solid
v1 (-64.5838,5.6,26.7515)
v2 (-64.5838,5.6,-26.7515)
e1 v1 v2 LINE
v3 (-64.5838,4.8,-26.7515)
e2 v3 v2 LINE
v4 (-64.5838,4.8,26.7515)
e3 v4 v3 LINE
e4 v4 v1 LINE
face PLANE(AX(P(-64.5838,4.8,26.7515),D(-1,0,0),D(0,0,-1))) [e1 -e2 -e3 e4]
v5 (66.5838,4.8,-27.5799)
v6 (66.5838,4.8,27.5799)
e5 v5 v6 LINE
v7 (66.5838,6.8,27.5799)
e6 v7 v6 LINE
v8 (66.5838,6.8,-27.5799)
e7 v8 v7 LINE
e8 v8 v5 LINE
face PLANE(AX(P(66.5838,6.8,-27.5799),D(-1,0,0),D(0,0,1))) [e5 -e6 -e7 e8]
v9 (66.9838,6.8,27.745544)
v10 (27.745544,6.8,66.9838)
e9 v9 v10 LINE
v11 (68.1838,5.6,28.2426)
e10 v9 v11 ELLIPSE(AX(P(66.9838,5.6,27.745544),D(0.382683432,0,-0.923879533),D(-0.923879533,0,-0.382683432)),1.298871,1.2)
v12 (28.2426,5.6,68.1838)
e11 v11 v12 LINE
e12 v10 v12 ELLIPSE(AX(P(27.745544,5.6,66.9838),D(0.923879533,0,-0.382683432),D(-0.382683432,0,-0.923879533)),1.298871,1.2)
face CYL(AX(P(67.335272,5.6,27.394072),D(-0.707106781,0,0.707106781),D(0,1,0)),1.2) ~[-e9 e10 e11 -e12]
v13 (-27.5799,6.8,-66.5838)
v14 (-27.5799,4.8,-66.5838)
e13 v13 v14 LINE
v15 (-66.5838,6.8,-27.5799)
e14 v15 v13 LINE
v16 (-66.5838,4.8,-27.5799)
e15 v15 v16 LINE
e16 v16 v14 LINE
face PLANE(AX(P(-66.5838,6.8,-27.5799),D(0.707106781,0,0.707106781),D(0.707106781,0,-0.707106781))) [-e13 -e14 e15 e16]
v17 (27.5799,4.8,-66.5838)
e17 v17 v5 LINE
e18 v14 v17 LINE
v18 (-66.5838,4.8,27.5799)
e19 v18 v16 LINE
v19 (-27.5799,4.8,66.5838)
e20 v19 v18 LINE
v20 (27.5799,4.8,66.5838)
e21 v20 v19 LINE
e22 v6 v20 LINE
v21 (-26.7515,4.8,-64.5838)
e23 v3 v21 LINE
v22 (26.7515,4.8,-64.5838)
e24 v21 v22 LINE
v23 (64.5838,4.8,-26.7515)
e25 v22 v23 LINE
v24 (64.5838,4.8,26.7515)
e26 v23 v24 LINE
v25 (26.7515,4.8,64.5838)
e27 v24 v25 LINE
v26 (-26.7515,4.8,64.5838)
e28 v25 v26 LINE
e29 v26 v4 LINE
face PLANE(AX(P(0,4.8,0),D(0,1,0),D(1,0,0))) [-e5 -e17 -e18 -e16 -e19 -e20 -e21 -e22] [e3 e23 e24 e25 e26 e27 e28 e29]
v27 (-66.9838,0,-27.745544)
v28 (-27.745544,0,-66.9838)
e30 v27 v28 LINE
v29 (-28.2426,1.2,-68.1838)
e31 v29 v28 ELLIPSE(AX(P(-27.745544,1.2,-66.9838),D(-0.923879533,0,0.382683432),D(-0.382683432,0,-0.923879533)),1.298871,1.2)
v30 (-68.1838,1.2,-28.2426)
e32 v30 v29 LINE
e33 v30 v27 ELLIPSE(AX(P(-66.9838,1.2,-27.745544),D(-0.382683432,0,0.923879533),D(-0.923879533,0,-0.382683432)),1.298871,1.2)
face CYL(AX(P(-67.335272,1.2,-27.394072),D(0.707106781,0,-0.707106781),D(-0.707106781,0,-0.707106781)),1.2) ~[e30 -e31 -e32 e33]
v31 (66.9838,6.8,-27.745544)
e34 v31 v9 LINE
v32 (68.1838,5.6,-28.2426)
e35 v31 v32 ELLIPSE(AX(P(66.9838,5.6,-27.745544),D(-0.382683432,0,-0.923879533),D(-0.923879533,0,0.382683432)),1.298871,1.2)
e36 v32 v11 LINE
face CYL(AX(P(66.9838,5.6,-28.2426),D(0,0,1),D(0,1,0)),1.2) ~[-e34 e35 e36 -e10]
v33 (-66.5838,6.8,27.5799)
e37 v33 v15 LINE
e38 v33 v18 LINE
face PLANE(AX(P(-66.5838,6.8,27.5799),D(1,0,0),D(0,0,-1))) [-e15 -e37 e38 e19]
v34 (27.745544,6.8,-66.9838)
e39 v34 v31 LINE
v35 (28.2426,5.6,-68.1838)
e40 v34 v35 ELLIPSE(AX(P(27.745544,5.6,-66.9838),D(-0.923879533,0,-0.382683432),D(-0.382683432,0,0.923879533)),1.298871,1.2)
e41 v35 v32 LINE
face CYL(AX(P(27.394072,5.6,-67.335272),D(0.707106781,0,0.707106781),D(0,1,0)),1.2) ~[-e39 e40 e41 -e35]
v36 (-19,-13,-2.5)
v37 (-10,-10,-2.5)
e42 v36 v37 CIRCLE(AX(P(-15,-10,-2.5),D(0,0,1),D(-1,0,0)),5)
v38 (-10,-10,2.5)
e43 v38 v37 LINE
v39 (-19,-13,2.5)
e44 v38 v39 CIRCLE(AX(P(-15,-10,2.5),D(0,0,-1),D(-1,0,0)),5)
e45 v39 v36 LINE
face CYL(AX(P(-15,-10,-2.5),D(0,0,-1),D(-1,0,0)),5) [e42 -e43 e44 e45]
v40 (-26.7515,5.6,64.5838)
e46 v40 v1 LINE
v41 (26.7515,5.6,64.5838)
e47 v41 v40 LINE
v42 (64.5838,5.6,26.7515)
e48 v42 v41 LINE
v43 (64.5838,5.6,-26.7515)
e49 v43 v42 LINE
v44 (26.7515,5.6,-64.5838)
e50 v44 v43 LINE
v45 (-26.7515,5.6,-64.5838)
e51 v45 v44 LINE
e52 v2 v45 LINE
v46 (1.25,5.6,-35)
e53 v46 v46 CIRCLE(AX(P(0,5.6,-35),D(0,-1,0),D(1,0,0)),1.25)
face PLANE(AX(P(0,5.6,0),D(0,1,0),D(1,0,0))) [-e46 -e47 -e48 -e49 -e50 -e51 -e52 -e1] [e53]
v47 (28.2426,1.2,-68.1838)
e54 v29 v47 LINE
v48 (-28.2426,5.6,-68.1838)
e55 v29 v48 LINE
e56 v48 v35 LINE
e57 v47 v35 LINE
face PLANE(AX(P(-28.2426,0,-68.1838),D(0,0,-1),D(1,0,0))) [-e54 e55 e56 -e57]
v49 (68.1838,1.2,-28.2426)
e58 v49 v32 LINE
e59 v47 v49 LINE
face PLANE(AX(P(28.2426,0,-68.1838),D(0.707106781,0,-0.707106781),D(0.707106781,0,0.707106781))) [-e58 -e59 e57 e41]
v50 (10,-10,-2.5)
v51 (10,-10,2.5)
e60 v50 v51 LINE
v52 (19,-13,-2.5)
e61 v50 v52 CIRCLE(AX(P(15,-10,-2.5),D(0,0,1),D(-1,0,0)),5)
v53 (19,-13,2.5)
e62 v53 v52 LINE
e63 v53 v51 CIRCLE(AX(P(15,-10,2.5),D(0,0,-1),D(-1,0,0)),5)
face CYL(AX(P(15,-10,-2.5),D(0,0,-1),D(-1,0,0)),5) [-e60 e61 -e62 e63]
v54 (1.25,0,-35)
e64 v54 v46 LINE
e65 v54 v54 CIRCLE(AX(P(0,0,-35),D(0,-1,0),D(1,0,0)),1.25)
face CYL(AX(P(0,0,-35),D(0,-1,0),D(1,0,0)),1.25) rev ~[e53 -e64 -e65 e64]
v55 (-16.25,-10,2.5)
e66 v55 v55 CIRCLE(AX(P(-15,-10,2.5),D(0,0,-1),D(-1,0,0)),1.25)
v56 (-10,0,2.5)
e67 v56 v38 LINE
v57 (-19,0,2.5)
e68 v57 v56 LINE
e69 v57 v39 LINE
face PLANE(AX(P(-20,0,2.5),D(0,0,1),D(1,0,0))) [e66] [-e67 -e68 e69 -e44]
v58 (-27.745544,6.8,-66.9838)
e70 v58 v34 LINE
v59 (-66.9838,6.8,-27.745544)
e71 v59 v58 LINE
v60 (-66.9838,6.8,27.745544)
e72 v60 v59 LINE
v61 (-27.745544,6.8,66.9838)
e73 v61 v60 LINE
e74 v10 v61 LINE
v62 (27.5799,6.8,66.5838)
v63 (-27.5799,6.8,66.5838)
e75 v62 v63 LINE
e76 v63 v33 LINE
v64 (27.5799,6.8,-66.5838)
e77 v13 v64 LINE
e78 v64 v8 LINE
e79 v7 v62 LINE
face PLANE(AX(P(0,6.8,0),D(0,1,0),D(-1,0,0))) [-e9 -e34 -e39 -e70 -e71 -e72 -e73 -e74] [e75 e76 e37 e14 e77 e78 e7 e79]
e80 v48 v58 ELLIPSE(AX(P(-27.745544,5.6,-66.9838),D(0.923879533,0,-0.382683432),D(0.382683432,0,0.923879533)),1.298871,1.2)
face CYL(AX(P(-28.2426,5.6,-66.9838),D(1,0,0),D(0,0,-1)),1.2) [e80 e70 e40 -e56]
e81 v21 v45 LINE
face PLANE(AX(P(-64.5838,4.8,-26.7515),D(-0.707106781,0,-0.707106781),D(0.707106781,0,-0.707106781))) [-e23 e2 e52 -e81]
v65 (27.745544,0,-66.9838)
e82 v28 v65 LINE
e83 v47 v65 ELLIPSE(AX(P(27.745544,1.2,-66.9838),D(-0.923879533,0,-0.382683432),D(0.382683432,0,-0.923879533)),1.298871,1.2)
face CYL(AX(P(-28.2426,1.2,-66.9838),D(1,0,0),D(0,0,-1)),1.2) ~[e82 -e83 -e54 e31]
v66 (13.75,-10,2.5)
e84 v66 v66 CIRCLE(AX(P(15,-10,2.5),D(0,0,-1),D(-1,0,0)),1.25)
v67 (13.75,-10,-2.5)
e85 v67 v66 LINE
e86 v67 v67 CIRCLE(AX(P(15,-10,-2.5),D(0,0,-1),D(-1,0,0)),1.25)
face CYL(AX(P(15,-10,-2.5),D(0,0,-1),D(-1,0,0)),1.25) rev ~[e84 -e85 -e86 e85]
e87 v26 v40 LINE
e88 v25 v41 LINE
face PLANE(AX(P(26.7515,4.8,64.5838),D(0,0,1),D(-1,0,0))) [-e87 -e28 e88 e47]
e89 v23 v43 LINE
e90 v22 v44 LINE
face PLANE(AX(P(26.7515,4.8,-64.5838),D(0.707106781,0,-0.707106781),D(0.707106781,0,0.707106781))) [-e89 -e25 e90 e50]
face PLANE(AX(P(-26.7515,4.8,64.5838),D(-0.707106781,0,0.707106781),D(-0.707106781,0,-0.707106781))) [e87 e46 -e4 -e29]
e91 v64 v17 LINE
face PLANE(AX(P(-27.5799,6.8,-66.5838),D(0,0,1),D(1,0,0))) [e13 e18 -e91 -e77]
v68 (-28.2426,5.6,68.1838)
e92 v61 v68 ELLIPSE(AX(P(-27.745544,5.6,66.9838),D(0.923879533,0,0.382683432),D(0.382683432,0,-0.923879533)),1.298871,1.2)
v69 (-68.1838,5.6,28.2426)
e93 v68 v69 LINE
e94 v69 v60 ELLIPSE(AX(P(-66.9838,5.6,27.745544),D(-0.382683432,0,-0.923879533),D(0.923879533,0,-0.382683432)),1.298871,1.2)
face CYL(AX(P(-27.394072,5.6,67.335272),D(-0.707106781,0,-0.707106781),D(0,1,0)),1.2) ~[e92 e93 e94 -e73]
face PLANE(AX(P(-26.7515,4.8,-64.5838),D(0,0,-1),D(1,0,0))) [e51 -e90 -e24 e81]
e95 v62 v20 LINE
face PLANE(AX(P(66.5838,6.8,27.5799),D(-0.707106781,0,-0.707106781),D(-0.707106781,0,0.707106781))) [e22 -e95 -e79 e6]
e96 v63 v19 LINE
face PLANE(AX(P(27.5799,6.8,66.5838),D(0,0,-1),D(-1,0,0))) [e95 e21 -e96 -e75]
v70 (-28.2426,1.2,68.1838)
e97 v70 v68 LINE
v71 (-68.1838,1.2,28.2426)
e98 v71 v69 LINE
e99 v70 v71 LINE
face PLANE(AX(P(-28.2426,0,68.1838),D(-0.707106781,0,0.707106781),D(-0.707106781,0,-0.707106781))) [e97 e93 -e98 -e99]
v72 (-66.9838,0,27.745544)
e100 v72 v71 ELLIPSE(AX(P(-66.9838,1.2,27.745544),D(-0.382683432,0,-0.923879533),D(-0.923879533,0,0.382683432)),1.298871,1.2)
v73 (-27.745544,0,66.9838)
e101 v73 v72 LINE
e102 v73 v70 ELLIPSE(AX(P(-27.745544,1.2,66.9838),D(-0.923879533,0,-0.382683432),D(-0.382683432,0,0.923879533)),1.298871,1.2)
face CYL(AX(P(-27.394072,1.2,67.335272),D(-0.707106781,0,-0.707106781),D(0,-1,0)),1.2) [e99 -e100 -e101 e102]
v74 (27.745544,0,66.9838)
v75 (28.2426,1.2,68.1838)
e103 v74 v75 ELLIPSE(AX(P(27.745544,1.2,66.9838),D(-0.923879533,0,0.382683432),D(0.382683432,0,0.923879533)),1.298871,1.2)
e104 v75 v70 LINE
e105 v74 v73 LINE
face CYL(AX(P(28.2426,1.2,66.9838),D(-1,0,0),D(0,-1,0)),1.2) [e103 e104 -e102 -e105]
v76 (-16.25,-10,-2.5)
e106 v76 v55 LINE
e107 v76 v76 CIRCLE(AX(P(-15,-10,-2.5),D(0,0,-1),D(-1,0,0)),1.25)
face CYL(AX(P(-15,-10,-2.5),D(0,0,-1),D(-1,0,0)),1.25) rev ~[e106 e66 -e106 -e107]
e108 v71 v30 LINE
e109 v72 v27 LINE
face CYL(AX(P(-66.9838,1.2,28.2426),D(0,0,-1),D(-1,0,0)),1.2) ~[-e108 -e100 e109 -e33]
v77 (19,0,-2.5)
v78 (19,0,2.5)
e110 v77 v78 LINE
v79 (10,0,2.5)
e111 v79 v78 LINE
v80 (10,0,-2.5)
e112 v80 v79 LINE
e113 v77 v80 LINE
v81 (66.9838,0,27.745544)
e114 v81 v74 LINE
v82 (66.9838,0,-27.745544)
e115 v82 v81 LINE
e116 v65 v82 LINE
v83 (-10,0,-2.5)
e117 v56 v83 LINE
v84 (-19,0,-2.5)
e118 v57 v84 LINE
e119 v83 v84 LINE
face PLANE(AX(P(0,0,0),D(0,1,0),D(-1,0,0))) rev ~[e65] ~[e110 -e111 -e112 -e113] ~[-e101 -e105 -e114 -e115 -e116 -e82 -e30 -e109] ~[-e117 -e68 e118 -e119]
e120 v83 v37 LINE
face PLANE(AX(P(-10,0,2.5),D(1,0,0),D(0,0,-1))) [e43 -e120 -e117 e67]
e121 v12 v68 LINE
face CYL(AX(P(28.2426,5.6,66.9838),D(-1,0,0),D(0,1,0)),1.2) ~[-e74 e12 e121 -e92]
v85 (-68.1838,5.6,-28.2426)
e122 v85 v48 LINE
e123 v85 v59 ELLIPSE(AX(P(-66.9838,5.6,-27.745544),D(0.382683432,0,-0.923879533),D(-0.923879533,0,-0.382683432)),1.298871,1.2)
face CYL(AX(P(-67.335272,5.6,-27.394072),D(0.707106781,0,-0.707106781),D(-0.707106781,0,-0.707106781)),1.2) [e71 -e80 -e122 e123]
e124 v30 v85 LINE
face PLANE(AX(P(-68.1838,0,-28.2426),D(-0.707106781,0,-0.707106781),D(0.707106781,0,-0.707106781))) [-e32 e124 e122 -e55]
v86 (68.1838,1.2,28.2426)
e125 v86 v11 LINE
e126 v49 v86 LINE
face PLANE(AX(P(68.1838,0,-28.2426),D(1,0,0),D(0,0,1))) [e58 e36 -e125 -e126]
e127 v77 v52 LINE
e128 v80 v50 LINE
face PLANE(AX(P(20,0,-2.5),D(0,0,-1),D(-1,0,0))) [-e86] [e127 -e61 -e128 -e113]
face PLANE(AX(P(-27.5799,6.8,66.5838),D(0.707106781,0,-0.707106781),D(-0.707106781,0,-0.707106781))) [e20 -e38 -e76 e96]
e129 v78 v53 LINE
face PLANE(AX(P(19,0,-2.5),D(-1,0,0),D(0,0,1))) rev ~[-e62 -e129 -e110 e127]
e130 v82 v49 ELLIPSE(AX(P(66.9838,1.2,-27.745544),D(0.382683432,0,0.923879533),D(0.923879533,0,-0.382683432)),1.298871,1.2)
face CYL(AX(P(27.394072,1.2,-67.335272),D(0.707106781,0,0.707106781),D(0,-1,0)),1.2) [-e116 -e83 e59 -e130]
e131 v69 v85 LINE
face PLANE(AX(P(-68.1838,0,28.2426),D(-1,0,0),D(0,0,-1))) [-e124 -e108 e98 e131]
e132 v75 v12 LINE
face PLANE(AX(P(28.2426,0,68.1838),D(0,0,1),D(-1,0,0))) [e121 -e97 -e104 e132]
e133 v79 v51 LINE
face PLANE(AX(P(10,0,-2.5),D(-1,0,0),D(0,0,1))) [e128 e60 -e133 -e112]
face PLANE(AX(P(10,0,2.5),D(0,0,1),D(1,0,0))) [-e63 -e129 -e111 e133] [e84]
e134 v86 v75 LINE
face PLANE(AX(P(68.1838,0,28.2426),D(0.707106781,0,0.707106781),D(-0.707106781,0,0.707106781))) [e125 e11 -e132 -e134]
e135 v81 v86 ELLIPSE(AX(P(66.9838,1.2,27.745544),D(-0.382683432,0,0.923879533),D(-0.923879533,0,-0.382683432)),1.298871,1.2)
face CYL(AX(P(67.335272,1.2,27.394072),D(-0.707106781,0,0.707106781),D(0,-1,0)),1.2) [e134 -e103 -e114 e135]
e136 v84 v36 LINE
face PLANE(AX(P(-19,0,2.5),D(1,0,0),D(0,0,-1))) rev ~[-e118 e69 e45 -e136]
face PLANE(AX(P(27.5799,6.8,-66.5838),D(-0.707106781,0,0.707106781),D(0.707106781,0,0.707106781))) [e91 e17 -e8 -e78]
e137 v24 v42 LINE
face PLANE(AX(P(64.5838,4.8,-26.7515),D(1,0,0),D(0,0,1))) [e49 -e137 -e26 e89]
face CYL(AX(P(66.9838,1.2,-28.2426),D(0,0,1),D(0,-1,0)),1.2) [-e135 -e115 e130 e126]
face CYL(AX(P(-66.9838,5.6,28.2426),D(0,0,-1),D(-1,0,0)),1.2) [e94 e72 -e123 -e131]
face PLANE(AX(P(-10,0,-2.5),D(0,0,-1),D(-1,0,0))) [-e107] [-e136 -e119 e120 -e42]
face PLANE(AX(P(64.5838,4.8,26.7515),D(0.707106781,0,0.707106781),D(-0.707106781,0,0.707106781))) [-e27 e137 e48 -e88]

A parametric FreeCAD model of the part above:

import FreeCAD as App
import Part
import Sketcher

V = App.Vector
Q = App.Units.Quantity


def edges_at(feature, points):
    """Names of the edges that pass closest to the given points."""
    edges = feature.Shape.Edges
    near = lambda p: min(range(len(edges)), key=lambda i: edges[i].distToShape(Part.Vertex(*p))[0])
    return sorted({f"Edge{near(p) + 1}" for p in points})


def add_polygon(sketch, points):
    """Adds a closed chain of lines whose ends are joined by coincident constraints."""
    first, n = sketch.GeometryCount, len(points)
    for a, b in zip(points, points[1:] + points[:1]):
        sketch.addGeometry(Part.LineSegment(App.Vector(*a, 0), App.Vector(*b, 0)), False)
    for i in range(n):
        sketch.addConstraint(Sketcher.Constraint("Coincident", first + i, 2, first + (i + 1) % n, 1))

doc = App.newDocument("Part")
body = doc.addObject("PartDesign::Body", "Body")

sketch1 = body.newObject("Sketcher::SketchObject", "Sketch")
sketch1.AttachmentSupport = (doc.getObject("XZ_Plane"), [""])
sketch1.MapMode = "FlatFace"
add_polygon(sketch1, [(-28, -68), (-68, -28), (-68, 28), (-28, 68), (28, 68), (68, 28), (68, -28), (28, -68)])
sketch1.addConstraint([
    Sketcher.Constraint("Vertical", 1),
    Sketcher.Constraint("Horizontal", 3),
    Sketcher.Constraint("Vertical", 5),
    Sketcher.Constraint("Horizontal", 7),
    Sketcher.Constraint("Symmetric", 0, 2, 4, 2, -1, 1),
    Sketcher.Constraint("Symmetric", 2, 2, 6, 2, -1, 1),
    Sketcher.Constraint("Perpendicular", 0, 2),
    Sketcher.Constraint("Perpendicular", 2, 4),
    Sketcher.Constraint("Perpendicular", 4, 6),
    Sketcher.Constraint("Horizontal", 1, 2, 4, 2),
    Sketcher.Constraint("Vertical", 3, 2, 6, 2),
    Sketcher.Constraint("Equal", 7, 1),
    Sketcher.Constraint("DistanceX", 3, 1, 3, 2, Q("56.4852 mm")),
    Sketcher.Constraint("Distance", 0, Q("56.4854 mm")),
])
pad1 = body.newObject("PartDesign::Pad", "Pad")
pad1.Profile = sketch1
pad1.Length = 6.8
pad1.Reversed = True

sketch2 = body.newObject("Sketcher::SketchObject", "Sketch001")
sketch2.AttachmentSupport = (doc.getObject("XZ_Plane"), [""])
sketch2.MapMode = "FlatFace"
sketch2.AttachmentOffset = App.Placement(V(0, 0, -6.8), App.Rotation())
add_polygon(sketch2, [(28, -67), (-28, -67), (-67, -28), (-67, 28), (-28, 67), (28, 67), (67, 28), (67, -28)])
sketch2.addConstraint([
    Sketcher.Constraint("Horizontal", 0),
    Sketcher.Constraint("Vertical", 2),
    Sketcher.Constraint("Horizontal", 4),
    Sketcher.Constraint("Vertical", 6),
    Sketcher.Constraint("Symmetric", 0, 2, 4, 2, -1, 1),
    Sketcher.Constraint("Symmetric", 1, 2, 5, 2, -1, 1),
    Sketcher.Constraint("Perpendicular", 1, 3),
    Sketcher.Constraint("Perpendicular", 5, 7),
    Sketcher.Constraint("Horizontal", 2, 2, 5, 2),
    Sketcher.Constraint("Horizontal", 1, 2, 6, 2),
    Sketcher.Constraint("Vertical", 0, 2, 3, 2),
    Sketcher.Constraint("Equal", 4, 2),
    Sketcher.Constraint("DistanceX", 0, 2, -1, 1, Q("27.58 mm")),
    Sketcher.Constraint("DistanceX", 1, 2, 0, 2, Q("39.004 mm")),
])
pocket1 = body.newObject("PartDesign::Pocket", "Pocket")
pocket1.Profile = sketch2
pocket1.Length = 2
pocket1.Reversed = True

sketch3 = body.newObject("Sketcher::SketchObject", "Sketch002")
sketch3.AttachmentSupport = (doc.getObject("XZ_Plane"), [""])
sketch3.MapMode = "FlatFace"
add_polygon(sketch3, [(20, 2), (10, 2), (10, -2), (20, -2)])
add_polygon(sketch3, [(-10, 2), (-20, 2), (-20, -2), (-10, -2)])
sketch3.addConstraint([
    Sketcher.Constraint("Horizontal", 0),
    Sketcher.Constraint("Vertical", 1),
    Sketcher.Constraint("Horizontal", 2),
    Sketcher.Constraint("Vertical", 3),
    Sketcher.Constraint("Horizontal", 4),
    Sketcher.Constraint("Vertical", 5),
    Sketcher.Constraint("Horizontal", 6),
    Sketcher.Constraint("Vertical", 7),
    Sketcher.Constraint("Symmetric", 2, 2, 4, 2, -1, 1),
    Sketcher.Constraint("Symmetric", 0, 2, 6, 2, -1, 1),
    Sketcher.Constraint("Horizontal", 3, 2, 4, 2),
    Sketcher.Constraint("DistanceX", 0, 2, 0, 1, Q("10 mm")),
    Sketcher.Constraint("DistanceY", 1, 2, 1, 1, Q("5 mm")),
    Sketcher.Constraint("DistanceX", -1, 1, 0, 2, Q("10 mm")),
])
pad2 = body.newObject("PartDesign::Pad", "Pad001")
pad2.Profile = sketch3
pad2.Length = 10

sketch4 = body.newObject("Sketcher::SketchObject", "Sketch003")
sketch4.AttachmentSupport = (doc.getObject("XY_Plane"), [""])
sketch4.MapMode = "FlatFace"
sketch4.AttachmentOffset = App.Placement(V(0, 0, -2.5), App.Rotation())
sketch4.addGeometry([
    Part.Circle(V(-15, -10, 0), V(0, 0, 1), 5),
    Part.Circle(V(15, -10, 0), V(0, 0, 1), 5),
], False)
sketch4.addConstraint([
    Sketcher.Constraint("Equal", 0, 1),
    Sketcher.Constraint("Symmetric", 0, 3, 1, 3, -2),
    Sketcher.Constraint("Diameter", 0, Q("10 mm")),
    Sketcher.Constraint("DistanceY", 0, 3, -1, 1, Q("10 mm")),
    Sketcher.Constraint("DistanceX", 0, 3, -1, 1, Q("15 mm")),
])
pad3 = body.newObject("PartDesign::Pad", "Pad002")
pad3.Profile = sketch4
pad3.Length = 5

sketch5 = body.newObject("Sketcher::SketchObject", "Sketch004")
sketch5.AttachmentSupport = (doc.getObject("XY_Plane"), [""])
sketch5.MapMode = "FlatFace"
sketch5.AttachmentOffset = App.Placement(V(0, 0, -2.5), App.Rotation())
sketch5.addGeometry([
    Part.Circle(V(-15, -10, 0), V(0, 0, 1), 1.2),
    Part.Circle(V(15, -10, 0), V(0, 0, 1), 1.2),
], False)
sketch5.addConstraint([
    Sketcher.Constraint("Equal", 0, 1),
    Sketcher.Constraint("Symmetric", 0, 3, 1, 3, -2),
    Sketcher.Constraint("Diameter", 0, Q("2.5 mm")),
    Sketcher.Constraint("DistanceY", 0, 3, -1, 1, Q("10 mm")),
    Sketcher.Constraint("DistanceX", 0, 3, 1, 3, Q("30 mm")),
])
pocket2 = body.newObject("PartDesign::Pocket", "Pocket001")
pocket2.Profile = sketch5
pocket2.Length = 5
pocket2.Reversed = True

sketch6 = body.newObject("Sketcher::SketchObject", "Sketch005")
sketch6.AttachmentSupport = (doc.getObject("XZ_Plane"), [""])
sketch6.MapMode = "FlatFace"
sketch6.AttachmentOffset = App.Placement(V(0, 0, -4.8), App.Rotation())
add_polygon(sketch6, [(27, -65), (-27, -65), (-65, -27), (-65, 27), (-27, 65), (27, 65), (65, 27), (65, -27)])
sketch6.addConstraint([
    Sketcher.Constraint("Horizontal", 0),
    Sketcher.Constraint("Vertical", 2),
    Sketcher.Constraint("Horizontal", 4),
    Sketcher.Constraint("Vertical", 6),
    Sketcher.Constraint("Symmetric", 0, 2, 4, 2, -1, 1),
    Sketcher.Constraint("Symmetric", 1, 2, 5, 2, -1, 1),
    Sketcher.Constraint("Perpendicular", 1, 3),
    Sketcher.Constraint("Perpendicular", 5, 7),
    Sketcher.Constraint("Horizontal", 2, 2, 5, 2),
    Sketcher.Constraint("Horizontal", 1, 2, 6, 2),
    Sketcher.Constraint("Vertical", 0, 2, 3, 2),
    Sketcher.Constraint("Equal", 4, 2),
    Sketcher.Constraint("DistanceX", 0, 2, 0, 1, Q("53.503 mm")),
    Sketcher.Constraint("Distance", 1, Q("53.503 mm")),
])
pad4 = body.newObject("PartDesign::Pad", "Pad003")
pad4.Profile = sketch6
pad4.Length = 0.8
pad4.Reversed = True
doc.recompute()

fillet = body.newObject("PartDesign::Fillet", "Fillet")
fillet.Base = (pad4, edges_at(pad4, [
    (-68.184, 6.8, 0),
    (-48.213, 6.8, 48.213),
    (0, 6.8, 68.184),
    (48.213, 6.8, 48.213),
    (68.184, 6.8, 0),
    (48.213, 6.8, -48.213),
    (0, 6.8, -68.184),
    (-48.213, 6.8, -48.213),
    (48.213, 0, 48.213),
    (0, 0, 68.184),
    (-48.213, 0, 48.213),
    (-68.184, 0, 0),
    (-48.213, 0, -48.213),
    (0, 0, -68.184),
    (48.213, 0, -48.213),
    (68.184, 0, 0),
]))
fillet.Radius = 1.2

sketch7 = body.newObject("Sketcher::SketchObject", "Sketch006")
sketch7.AttachmentSupport = (doc.getObject("XZ_Plane"), [""])
sketch7.MapMode = "FlatFace"
add_polygon(sketch7, [(-19, 2.5), (-20, 2.5), (-20, -2.5), (-19, -2.5)])
add_polygon(sketch7, [(19, -2.5), (20, -2.5), (20, 2.5), (19, 2.5)])
sketch7.addConstraint([
    Sketcher.Constraint("Horizontal", 0),
    Sketcher.Constraint("Vertical", 1),
    Sketcher.Constraint("Horizontal", 2),
    Sketcher.Constraint("Vertical", 3),
    Sketcher.Constraint("Horizontal", 4),
    Sketcher.Constraint("Vertical", 5),
    Sketcher.Constraint("Horizontal", 6),
    Sketcher.Constraint("Vertical", 7),
    Sketcher.Constraint("Symmetric", 0, 2, 4, 2, -1, 1),
    Sketcher.Constraint("Symmetric", 2, 2, 6, 2, -1, 1),
    Sketcher.Constraint("Horizontal", 2, 2, 4, 2),
    Sketcher.Constraint("DistanceX", 0, 2, 0, 1, Q("1 mm")),
    Sketcher.Constraint("DistanceY", 1, 2, 1, 1, Q("5 mm")),
    Sketcher.Constraint("DistanceX", 0, 2, -1, 1, Q("20 mm")),
])
pocket3 = body.newObject("PartDesign::Pocket", "Pocket002")
pocket3.Profile = sketch7
pocket3.Length = 15
pocket3.Reversed = True

sketch8 = body.newObject("Sketcher::SketchObject", "Sketch007")
sketch8.AttachmentSupport = (doc.getObject("XZ_Plane"), [""])
sketch8.MapMode = "FlatFace"
sketch8.addGeometry(Part.Circle(V(0, -35, 0), V(0, 0, 1), 1.2), False)
sketch8.addConstraint([
    Sketcher.Constraint("PointOnObject", 0, 3, -2),
    Sketcher.Constraint("Diameter", 0, Q("2.5 mm")),
    Sketcher.Constraint("DistanceY", 0, 3, -1, 1, Q("35 mm")),
])
pocket4 = body.newObject("PartDesign::Pocket", "Pocket003")
pocket4.Profile = sketch8
pocket4.Length = 5.6

doc.recompute()
